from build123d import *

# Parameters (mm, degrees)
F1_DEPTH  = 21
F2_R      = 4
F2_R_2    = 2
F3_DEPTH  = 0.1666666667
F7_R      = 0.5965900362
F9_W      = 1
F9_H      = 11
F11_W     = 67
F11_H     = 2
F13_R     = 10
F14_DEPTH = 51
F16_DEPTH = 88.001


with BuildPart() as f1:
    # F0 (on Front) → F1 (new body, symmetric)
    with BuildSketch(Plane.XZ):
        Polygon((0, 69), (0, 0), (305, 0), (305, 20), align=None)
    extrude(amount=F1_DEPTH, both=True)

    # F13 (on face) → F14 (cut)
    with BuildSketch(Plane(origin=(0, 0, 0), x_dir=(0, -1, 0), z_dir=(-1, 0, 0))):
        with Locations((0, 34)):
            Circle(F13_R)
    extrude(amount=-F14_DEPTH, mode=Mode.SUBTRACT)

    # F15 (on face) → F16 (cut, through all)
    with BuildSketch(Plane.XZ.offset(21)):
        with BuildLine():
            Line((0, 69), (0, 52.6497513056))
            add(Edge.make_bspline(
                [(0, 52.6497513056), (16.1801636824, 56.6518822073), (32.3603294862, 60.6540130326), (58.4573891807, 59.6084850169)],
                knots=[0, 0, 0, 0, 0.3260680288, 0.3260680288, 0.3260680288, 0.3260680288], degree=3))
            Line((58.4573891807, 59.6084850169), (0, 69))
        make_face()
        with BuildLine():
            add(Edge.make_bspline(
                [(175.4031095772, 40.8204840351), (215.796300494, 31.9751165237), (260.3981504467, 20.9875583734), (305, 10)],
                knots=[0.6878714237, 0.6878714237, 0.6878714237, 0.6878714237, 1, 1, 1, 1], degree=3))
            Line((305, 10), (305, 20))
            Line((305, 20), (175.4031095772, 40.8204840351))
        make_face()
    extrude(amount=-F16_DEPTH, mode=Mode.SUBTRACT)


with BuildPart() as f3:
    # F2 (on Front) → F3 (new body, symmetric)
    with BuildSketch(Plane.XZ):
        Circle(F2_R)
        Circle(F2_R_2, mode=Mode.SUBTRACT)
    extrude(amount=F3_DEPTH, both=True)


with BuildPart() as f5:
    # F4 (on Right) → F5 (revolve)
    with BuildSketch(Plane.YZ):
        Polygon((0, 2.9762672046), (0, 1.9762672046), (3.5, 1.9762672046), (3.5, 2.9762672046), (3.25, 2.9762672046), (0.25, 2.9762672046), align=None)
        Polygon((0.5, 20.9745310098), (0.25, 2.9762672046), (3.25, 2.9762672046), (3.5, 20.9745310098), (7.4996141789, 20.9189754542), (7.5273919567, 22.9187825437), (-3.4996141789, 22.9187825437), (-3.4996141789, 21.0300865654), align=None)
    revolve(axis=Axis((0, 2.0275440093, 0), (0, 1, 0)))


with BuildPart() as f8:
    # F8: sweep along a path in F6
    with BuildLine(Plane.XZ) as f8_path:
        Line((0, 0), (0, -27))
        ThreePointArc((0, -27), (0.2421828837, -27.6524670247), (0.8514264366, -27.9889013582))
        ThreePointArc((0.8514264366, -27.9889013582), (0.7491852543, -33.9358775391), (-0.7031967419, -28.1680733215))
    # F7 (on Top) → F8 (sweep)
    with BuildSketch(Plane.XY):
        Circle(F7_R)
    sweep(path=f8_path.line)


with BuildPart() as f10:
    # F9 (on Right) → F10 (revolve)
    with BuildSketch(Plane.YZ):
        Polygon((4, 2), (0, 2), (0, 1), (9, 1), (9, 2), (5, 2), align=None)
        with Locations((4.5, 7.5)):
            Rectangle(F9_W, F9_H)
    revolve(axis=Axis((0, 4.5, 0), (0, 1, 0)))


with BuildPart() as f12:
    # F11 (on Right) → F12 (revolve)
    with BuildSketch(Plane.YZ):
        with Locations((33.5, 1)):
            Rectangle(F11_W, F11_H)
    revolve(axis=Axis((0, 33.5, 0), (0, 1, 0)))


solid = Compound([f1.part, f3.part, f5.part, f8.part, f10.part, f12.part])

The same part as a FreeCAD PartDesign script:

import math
import FreeCAD as App
import Part
import Sketcher
Q = App.Units.Quantity

doc = App.newDocument("Part")
params = doc.addObject("Spreadsheet::Sheet", "Params")
for row, (alias, value) in enumerate([
    ("sketch1_width", "305 mm"),
    ("sketch1_height", "69 mm"),
    ("sketch1_height2", "20 mm"),
    ("pad1_length", "42 mm"),
    ("sketch2_diameter", "20 mm"),
    ("pocket1_length", "51 mm"),
    ("sketch3_height", "10 mm"),
    ("sketch4_diameter", "8 mm"),
    ("sketch4_diameter2", "4 mm"),
    ("pad2_length", "0.333333 mm"),
    ("sketch5_height", "1 mm"),
    ("sketch5_length", "18 mm"),
    ("sketch5_length2", "4 mm"),
    ("sketch5_length3", "2 mm"),
    ("sketch5_width", "3.5 mm"),
    ("revolution_angle", "360 deg"),
    ("sketch7_radius", "1 mm"),
    ("sketch7_radius2", "3 mm"),
    ("sketch7_height", "27 mm"),
    ("sketch8_width", "9 mm"),
    ("sketch8_width2", "4 mm"),
    ("sketch8_height", "11 mm"),
    ("revolution2_angle", "360 deg"),
    ("sketch9_width", "67 mm"),
    ("sketch9_height", "2 mm"),
    ("revolution3_angle", "360 deg"),
], start=1):
    params.set(f"A{row}", alias)
    params.set(f"B{row}", "=" + value)
    params.setAlias(f"B{row}", alias)

body = doc.addObject("PartDesign::Body", "Body")

# Sketch on XZ plane
sketch1 = body.newObject("Sketcher::SketchObject", "Sketch")
sketch1.AttachmentSupport = (doc.getObject("XZ_Plane"), [""])
sketch1.MapMode = "FlatFace"
sketch1.addGeometry(Part.LineSegment(App.Vector(0, 69, 0), App.Vector(0, 0, 0)), False)
sketch1.addGeometry(Part.LineSegment(App.Vector(0, 0, 0), App.Vector(305, 0, 0)), False)
sketch1.addGeometry(Part.LineSegment(App.Vector(305, 0, 0), App.Vector(305, 20, 0)), False)
sketch1.addGeometry(Part.LineSegment(App.Vector(305, 20, 0), App.Vector(0, 69, 0)), False)
sketch1.addConstraint(Sketcher.Constraint("Coincident", 0, 2, 1, 1))
sketch1.addConstraint(Sketcher.Constraint("Coincident", 1, 2, 2, 1))
sketch1.addConstraint(Sketcher.Constraint("Coincident", 2, 2, 3, 1))
sketch1.addConstraint(Sketcher.Constraint("Coincident", 3, 2, 0, 1))
sketch1.addConstraint(Sketcher.Constraint("Vertical", 0))
sketch1.addConstraint(Sketcher.Constraint("Horizontal", 1))
sketch1.addConstraint(Sketcher.Constraint("Vertical", 2))
sketch1.addConstraint(Sketcher.Constraint("Coincident", 0, 2, -1, 1))
sketch1.addConstraint(Sketcher.Constraint("DistanceX", 1, 1, 1, 2, Q("305 mm")))
sketch1.addConstraint(Sketcher.Constraint("DistanceY", 0, 2, 0, 1, Q("69 mm")))
sketch1.addConstraint(Sketcher.Constraint("DistanceY", 2, 1, 2, 2, Q("20 mm")))
sketch1.setExpression("Constraints[8]", "Params.sketch1_width")
sketch1.setExpression("Constraints[9]", "Params.sketch1_height")
sketch1.setExpression("Constraints[10]", "Params.sketch1_height2")
pad1 = body.newObject("PartDesign::Pad", "Pad")
pad1.Profile = sketch1
pad1.setExpression("Length", "Params.pad1_length")
pad1.Midplane = True

# Sketch on YZ plane
sketch2 = body.newObject("Sketcher::SketchObject", "Sketch001")
sketch2.AttachmentSupport = (doc.getObject("YZ_Plane"), [""])
sketch2.MapMode = "FlatFace"
sketch2.addGeometry(Part.Circle(App.Vector(0, 34, 0), App.Vector(0, 0, 1), 10), False)
sketch2.addConstraint(Sketcher.Constraint("PointOnObject", 0, 3, -2))
sketch2.addConstraint(Sketcher.Constraint("Diameter", 0, Q("20 mm")))
sketch2.addConstraint(Sketcher.Constraint("DistanceY", -1, 1, 0, 3, Q("34 mm")))
sketch2.setExpression("Constraints[1]", "Params.sketch2_diameter")
pocket1 = body.newObject("PartDesign::Pocket", "Pocket")
pocket1.Profile = sketch2
pocket1.setExpression("Length", "Params.pocket1_length")
pocket1.Reversed = True

# Sketch on XZ plane
sketch3 = body.newObject("Sketcher::SketchObject", "Sketch002")
sketch3.AttachmentSupport = (doc.getObject("XZ_Plane"), [""])
sketch3.MapMode = "FlatFace"
sketch3.AttachmentOffset = App.Placement(App.Vector(0, 0, 21), App.Rotation())
sketch3.addGeometry(Part.LineSegment(App.Vector(0, 69, 0), App.Vector(0, 52.649751, 0)), False)
sketch3.addGeometry(Part.BSplineCurve([App.Vector(0, 52.649751, 0), App.Vector(16.180164, 56.651882, 0), App.Vector(32.360329, 60.654013, 0), App.Vector(58.457389, 59.608485, 0)], [4, 4], [0, 0.326068029], False, 3, [1, 1, 1, 1], False), False)
sketch3.addGeometry(Part.LineSegment(App.Vector(58.457389, 59.608485, 0), App.Vector(0, 69, 0)), False)
sketch3.addGeometry(Part.BSplineCurve([App.Vector(175.40311, 40.820484, 0), App.Vector(215.7963, 31.975117, 0), App.Vector(260.39815, 20.987558, 0), App.Vector(305, 10, 0)], [4, 4], [0.687871424, 1], False, 3, [1, 1, 1, 1], False), False)
sketch3.addGeometry(Part.LineSegment(App.Vector(305, 10, 0), App.Vector(305, 20, 0)), False)
sketch3.addGeometry(Part.LineSegment(App.Vector(305, 20, 0), App.Vector(175.40311, 40.820484, 0)), False)
sketch3.addConstraint(Sketcher.Constraint("Block", 1))
sketch3.addConstraint(Sketcher.Constraint("Block", 3))
sketch3.addConstraint(Sketcher.Constraint("Coincident", 0, 2, 1, 1))
sketch3.addConstraint(Sketcher.Constraint("Coincident", 1, 2, 2, 1))
sketch3.addConstraint(Sketcher.Constraint("Coincident", 2, 2, 0, 1))
sketch3.addConstraint(Sketcher.Constraint("Coincident", 3, 2, 4, 1))
sketch3.addConstraint(Sketcher.Constraint("Coincident", 4, 2, 5, 1))
sketch3.addConstraint(Sketcher.Constraint("Coincident", 5, 2, 3, 1))
sketch3.addConstraint(Sketcher.Constraint("Vertical", 0))
sketch3.addConstraint(Sketcher.Constraint("Vertical", 4))
sketch3.addConstraint(Sketcher.Constraint("DistanceY", 4, 1, 4, 2, Q("10 mm")))
sketch3.addConstraint(Sketcher.Constraint("DistanceY", -1, 1, 2, 2, Q("69 mm")))
sketch3.setExpression("Constraints[10]", "Params.sketch3_height")
pocket2 = body.newObject("PartDesign::Pocket", "Pocket001")
pocket2.Profile = sketch3
pocket2.Type = "ThroughAll"
body2 = doc.addObject("PartDesign::Body", "Body001")

# Sketch on XZ plane
sketch4 = body2.newObject("Sketcher::SketchObject", "Sketch003")
sketch4.AttachmentSupport = (doc.getObject("XZ_Plane001"), [""])
sketch4.MapMode = "FlatFace"
sketch4.addGeometry(Part.Circle(App.Vector(0, 0, 0), App.Vector(0, 0, 1), 4), False)
sketch4.addGeometry(Part.Circle(App.Vector(0, 0, 0), App.Vector(0, 0, 1), 2), False)
sketch4.addConstraint(Sketcher.Constraint("Coincident", 0, 3, -1, 1))
sketch4.addConstraint(Sketcher.Constraint("Coincident", 1, 3, -1, 1))
sketch4.addConstraint(Sketcher.Constraint("Diameter", 0, Q("8 mm")))
sketch4.addConstraint(Sketcher.Constraint("Diameter", 1, Q("4 mm")))
sketch4.setExpression("Constraints[2]", "Params.sketch4_diameter")
sketch4.setExpression("Constraints[3]", "Params.sketch4_diameter2")
pad2 = body2.newObject("PartDesign::Pad", "Pad001")
pad2.Profile = sketch4
pad2.setExpression("Length", "Params.pad2_length")
pad2.Midplane = True
body3 = doc.addObject("PartDesign::Body", "Body002")

# Sketch on YZ plane
sketch5 = body3.newObject("Sketcher::SketchObject", "Sketch004")
sketch5.AttachmentSupport = (doc.getObject("YZ_Plane002"), [""])
sketch5.MapMode = "FlatFace"
sketch5.addGeometry(Part.LineSegment(App.Vector(0, 2.98, 0), App.Vector(0, 1.98, 0)), False)
sketch5.addGeometry(Part.LineSegment(App.Vector(0, 1.98, 0), App.Vector(3.5, 1.98, 0)), False)
sketch5.addGeometry(Part.LineSegment(App.Vector(3.5, 1.98, 0), App.Vector(3.5, 2.98, 0)), False)
sketch5.addGeometry(Part.LineSegment(App.Vector(3.5, 2.98, 0), App.Vector(3.25, 2.98, 0)), False)
sketch5.addGeometry(Part.LineSegment(App.Vector(3.25, 2.98, 0), App.Vector(3.5, 20.97, 0)), False)
sketch5.addGeometry(Part.LineSegment(App.Vector(3.5, 20.97, 0), App.Vector(7.5, 20.92, 0)), False)
sketch5.addGeometry(Part.LineSegment(App.Vector(7.5, 20.92, 0), App.Vector(7.53, 22.92, 0)), False)
sketch5.addGeometry(Part.LineSegment(App.Vector(7.53, 22.92, 0), App.Vector(-3.5, 22.92, 0)), False)
sketch5.addGeometry(Part.LineSegment(App.Vector(-3.5, 22.92, 0), App.Vector(-3.5, 21.03, 0)), False)
sketch5.addGeometry(Part.LineSegment(App.Vector(-3.5, 21.03, 0), App.Vector(0.5, 20.97, 0)), False)
sketch5.addGeometry(Part.LineSegment(App.Vector(0.5, 20.97, 0), App.Vector(0.25, 2.98, 0)), False)
sketch5.addGeometry(Part.LineSegment(App.Vector(0.25, 2.98, 0), App.Vector(0, 2.98, 0)), False)
sketch5.addConstraint(Sketcher.Constraint("Coincident", 0, 2, 1, 1))
sketch5.addConstraint(Sketcher.Constraint("Coincident", 1, 2, 2, 1))
sketch5.addConstraint(Sketcher.Constraint("Coincident", 2, 2, 3, 1))
sketch5.addConstraint(Sketcher.Constraint("Coincident", 3, 2, 4, 1))
sketch5.addConstraint(Sketcher.Constraint("Coincident", 4, 2, 5, 1))
sketch5.addConstraint(Sketcher.Constraint("Coincident", 5, 2, 6, 1))
sketch5.addConstraint(Sketcher.Constraint("Coincident", 6, 2, 7, 1))
sketch5.addConstraint(Sketcher.Constraint("Coincident", 7, 2, 8, 1))
sketch5.addConstraint(Sketcher.Constraint("Coincident", 8, 2, 9, 1))
sketch5.addConstraint(Sketcher.Constraint("Coincident", 9, 2, 10, 1))
sketch5.addConstraint(Sketcher.Constraint("Coincident", 10, 2, 11, 1))
sketch5.addConstraint(Sketcher.Constraint("Coincident", 11, 2, 0, 1))
sketch5.addConstraint(Sketcher.Constraint("Vertical", 0))
sketch5.addConstraint(Sketcher.Constraint("Horizontal", 1))
sketch5.addConstraint(Sketcher.Constraint("Vertical", 2))
sketch5.addConstraint(Sketcher.Constraint("Horizontal", 3))
sketch5.addConstraint(Sketcher.Constraint("Horizontal", 7))
sketch5.addConstraint(Sketcher.Constraint("Vertical", 8))
sketch5.addConstraint(Sketcher.Constraint("Horizontal", 11))
sketch5.addConstraint(Sketcher.Constraint("PointOnObject", 0, 2, -2))
sketch5.addConstraint(Sketcher.Constraint("Perpendicular", 4, 5))
sketch5.addConstraint(Sketcher.Constraint("Perpendicular", 5, 6))
sketch5.addConstraint(Sketcher.Constraint("Perpendicular", 6, 9))
sketch5.addConstraint(Sketcher.Constraint("Perpendicular", 9, 10))
sketch5.addConstraint(Sketcher.Constraint("Horizontal", 4, 2, 9, 2))
sketch5.addConstraint(Sketcher.Constraint("Horizontal", 3, 2, 10, 2))
sketch5.addConstraint(Sketcher.Constraint("Vertical", 2, 2, 4, 2))
sketch5.addConstraint(Sketcher.Constraint("Equal", 3, 11))
sketch5.addConstraint(Sketcher.Constraint("Equal", 5, 9))
sketch5.addConstraint(Sketcher.Constraint("DistanceY", 0, 2, 0, 1, Q("1 mm")))
sketch5.addConstraint(Sketcher.Constraint("Distance", 4, Q("18 mm")))
sketch5.addConstraint(Sketcher.Constraint("Distance", 5, Q("4 mm")))
sketch5.addConstraint(Sketcher.Constraint("Distance", 6, Q("2 mm")))
sketch5.addConstraint(Sketcher.Constraint("DistanceX", 1, 1, 1, 2, Q("3.5 mm")))
sketch5.addConstraint(Sketcher.Constraint("DistanceX", 9, 2, 4, 2, Q("3 mm")))
sketch5.addConstraint(Sketcher.Constraint("DistanceY", -1, 1, 4, 2, Q("20.974531 mm")))
sketch5.setExpression("Constraints[29]", "Params.sketch5_height")
sketch5.setExpression("Constraints[30]", "Params.sketch5_length")
sketch5.setExpression("Constraints[31]", "Params.sketch5_length2")
sketch5.setExpression("Constraints[32]", "Params.sketch5_length3")
sketch5.setExpression("Constraints[33]", "Params.sketch5_width")
revolution = body3.newObject("PartDesign::Revolution", "Revolution")
revolution.Profile = sketch5
revolution.ReferenceAxis = (sketch5, ["H_Axis"])
revolution.setExpression("Angle", "Params.revolution_angle")
body4 = doc.addObject("PartDesign::Body", "Body003")

# Sketch on XY plane
sketch6 = body4.newObject("Sketcher::SketchObject", "Sketch005")
sketch6.AttachmentSupport = (doc.getObject("XY_Plane003"), [""])
sketch6.MapMode = "FlatFace"
sketch6.addGeometry(Part.Circle(App.Vector(0, 0, 0), App.Vector(0, 0, 1), 0.6), False)
sketch6.addConstraint(Sketcher.Constraint("Coincident", 0, 3, -1, 1))
sketch6.addConstraint(Sketcher.Constraint("Diameter", 0, Q("1.19318 mm")))

# Sketch on XZ plane
sketch7 = body4.newObject("Sketcher::SketchObject", "Sketch006")
sketch7.AttachmentSupport = (doc.getObject("XZ_Plane003"), [""])
sketch7.MapMode = "FlatFace"
sketch7.addGeometry(Part.LineSegment(App.Vector(0, 0, 0), App.Vector(0, -27, 0)), False)
sketch7.addGeometry(Part.ArcOfCircle(Part.Circle(App.Vector(1, -27, 0), App.Vector(0, 0, 1), 1), math.radians(180), math.radians(261)), False)
sketch7.addGeometry(Part.ArcOfCircle(Part.Circle(App.Vector(0.4, -31, 0), App.Vector(0, 0, 1), 3), math.radians(112), math.radians(441)), False)
sketch7.addConstraint(Sketcher.Constraint("Tangent", 0, 2, 1, 1))
sketch7.addConstraint(Sketcher.Constraint("Tangent", 1, 2, 2, 2))
sketch7.addConstraint(Sketcher.Constraint("Vertical", 0))
sketch7.addConstraint(Sketcher.Constraint("Coincident", 0, 1, -1, 1))
sketch7.addConstraint(Sketcher.Constraint("Radius", 1, Q("1 mm")))
sketch7.addConstraint(Sketcher.Constraint("Radius", 2, Q("3 mm")))
sketch7.addConstraint(Sketcher.Constraint("DistanceY", 0, 2, 0, 1, Q("27 mm")))
sketch7.addConstraint(Sketcher.Constraint("DistanceY", 1, 2, -1, 1, Q("27.988901 mm")))
sketch7.addConstraint(Sketcher.Constraint("DistanceY", 2, 1, 1, 2, Q("0.179172 mm")))
sketch7.setExpression("Constraints[4]", "Params.sketch7_radius")
sketch7.setExpression("Constraints[5]", "Params.sketch7_radius2")
sketch7.setExpression("Constraints[6]", "Params.sketch7_height")
doc.recompute()

additivepipe = body4.newObject("PartDesign::AdditivePipe", "AdditivePipe")
additivepipe.Profile = sketch6
additivepipe.Spine = (sketch7, ["Edge1", "Edge2", "Edge3"])
body5 = doc.addObject("PartDesign::Body", "Body004")

# Sketch on YZ plane
sketch8 = body5.newObject("Sketcher::SketchObject", "Sketch007")
sketch8.AttachmentSupport = (doc.getObject("YZ_Plane004"), [""])
sketch8.MapMode = "FlatFace"
sketch8.addGeometry(Part.LineSegment(App.Vector(0, 2, 0), App.Vector(0, 1, 0)), False)
sketch8.addGeometry(Part.LineSegment(App.Vector(0, 1, 0), App.Vector(9, 1, 0)), False)
sketch8.addGeometry(Part.LineSegment(App.Vector(9, 1, 0), App.Vector(9, 2, 0)), False)
sketch8.addGeometry(Part.LineSegment(App.Vector(9, 2, 0), App.Vector(5, 2, 0)), False)
sketch8.addGeometry(Part.LineSegment(App.Vector(5, 2, 0), App.Vector(5, 13, 0)), False)
sketch8.addGeometry(Part.LineSegment(App.Vector(5, 13, 0), App.Vector(4, 13, 0)), False)
sketch8.addGeometry(Part.LineSegment(App.Vector(4, 13, 0), App.Vector(4, 2, 0)), False)
sketch8.addGeometry(Part.LineSegment(App.Vector(4, 2, 0), App.Vector(0, 2, 0)), False)
sketch8.addConstraint(Sketcher.Constraint("Coincident", 0, 2, 1, 1))
sketch8.addConstraint(Sketcher.Constraint("Coincident", 1, 2, 2, 1))
sketch8.addConstraint(Sketcher.Constraint("Coincident", 2, 2, 3, 1))
sketch8.addConstraint(Sketcher.Constraint("Coincident", 3, 2, 4, 1))
sketch8.addConstraint(Sketcher.Constraint("Coincident", 4, 2, 5, 1))
sketch8.addConstraint(Sketcher.Constraint("Coincident", 5, 2, 6, 1))
sketch8.addConstraint(Sketcher.Constraint("Coincident", 6, 2, 7, 1))
sketch8.addConstraint(Sketcher.Constraint("Coincident", 7, 2, 0, 1))
sketch8.addConstraint(Sketcher.Constraint("Vertical", 0))
sketch8.addConstraint(Sketcher.Constraint("Horizontal", 1))
sketch8.addConstraint(Sketcher.Constraint("Vertical", 2))
sketch8.addConstraint(Sketcher.Constraint("Horizontal", 3))
sketch8.addConstraint(Sketcher.Constraint("Vertical", 4))
sketch8.addConstraint(Sketcher.Constraint("Horizontal", 5))
sketch8.addConstraint(Sketcher.Constraint("Vertical", 6))
sketch8.addConstraint(Sketcher.Constraint("Horizontal", 7))
sketch8.addConstraint(Sketcher.Constraint("PointOnObject", 0, 2, -2))
sketch8.addConstraint(Sketcher.Constraint("Horizontal", 3, 2, 6, 2))
sketch8.addConstraint(Sketcher.Constraint("Equal", 3, 7))
sketch8.addConstraint(Sketcher.Constraint("Equal", 5, 0))
sketch8.addConstraint(Sketcher.Constraint("DistanceX", 1, 1, 1, 2, Q("9 mm")))
sketch8.addConstraint(Sketcher.Constraint("DistanceX", 3, 2, 3, 1, Q("4 mm")))
sketch8.addConstraint(Sketcher.Constraint("DistanceY", 4, 1, 4, 2, Q("11 mm")))
sketch8.addConstraint(Sketcher.Constraint("DistanceY", -1, 1, 0, 2, Q("1 mm")))
sketch8.setExpression("Constraints[20]", "Params.sketch8_width")
sketch8.setExpression("Constraints[21]", "Params.sketch8_width2")
sketch8.setExpression("Constraints[22]", "Params.sketch8_height")
revolution2 = body5.newObject("PartDesign::Revolution", "Revolution001")
revolution2.Profile = sketch8
revolution2.ReferenceAxis = (sketch8, ["H_Axis"])
revolution2.setExpression("Angle", "Params.revolution2_angle")
body6 = doc.addObject("PartDesign::Body", "Body005")

# Sketch on YZ plane
sketch9 = body6.newObject("Sketcher::SketchObject", "Sketch008")
sketch9.AttachmentSupport = (doc.getObject("YZ_Plane005"), [""])
sketch9.MapMode = "FlatFace"
sketch9.addGeometry(Part.LineSegment(App.Vector(0, 2, 0), App.Vector(0, 0, 0)), False)
sketch9.addGeometry(Part.LineSegment(App.Vector(0, 0, 0), App.Vector(67, 0, 0)), False)
sketch9.addGeometry(Part.LineSegment(App.Vector(67, 0, 0), App.Vector(67, 2, 0)), False)
sketch9.addGeometry(Part.LineSegment(App.Vector(67, 2, 0), App.Vector(0, 2, 0)), False)
sketch9.addConstraint(Sketcher.Constraint("Coincident", 0, 2, 1, 1))
sketch9.addConstraint(Sketcher.Constraint("Coincident", 1, 2, 2, 1))
sketch9.addConstraint(Sketcher.Constraint("Coincident", 2, 2, 3, 1))
sketch9.addConstraint(Sketcher.Constraint("Coincident", 3, 2, 0, 1))
sketch9.addConstraint(Sketcher.Constraint("Vertical", 0))
sketch9.addConstraint(Sketcher.Constraint("Horizontal", 1))
sketch9.addConstraint(Sketcher.Constraint("Vertical", 2))
sketch9.addConstraint(Sketcher.Constraint("Horizontal", 3))
sketch9.addConstraint(Sketcher.Constraint("Coincident", 0, 2, -1, 1))
sketch9.addConstraint(Sketcher.Constraint("DistanceX", 1, 1, 1, 2, Q("67 mm")))
sketch9.addConstraint(Sketcher.Constraint("DistanceY", 0, 2, 0, 1, Q("2 mm")))
sketch9.setExpression("Constraints[9]", "Params.sketch9_width")
sketch9.setExpression("Constraints[10]", "Params.sketch9_height")
revolution3 = body6.newObject("PartDesign::Revolution", "Revolution002")
revolution3.Profile = sketch9
revolution3.ReferenceAxis = (sketch9, ["H_Axis"])
revolution3.setExpression("Angle", "Params.revolution3_angle")

doc.recompute()
